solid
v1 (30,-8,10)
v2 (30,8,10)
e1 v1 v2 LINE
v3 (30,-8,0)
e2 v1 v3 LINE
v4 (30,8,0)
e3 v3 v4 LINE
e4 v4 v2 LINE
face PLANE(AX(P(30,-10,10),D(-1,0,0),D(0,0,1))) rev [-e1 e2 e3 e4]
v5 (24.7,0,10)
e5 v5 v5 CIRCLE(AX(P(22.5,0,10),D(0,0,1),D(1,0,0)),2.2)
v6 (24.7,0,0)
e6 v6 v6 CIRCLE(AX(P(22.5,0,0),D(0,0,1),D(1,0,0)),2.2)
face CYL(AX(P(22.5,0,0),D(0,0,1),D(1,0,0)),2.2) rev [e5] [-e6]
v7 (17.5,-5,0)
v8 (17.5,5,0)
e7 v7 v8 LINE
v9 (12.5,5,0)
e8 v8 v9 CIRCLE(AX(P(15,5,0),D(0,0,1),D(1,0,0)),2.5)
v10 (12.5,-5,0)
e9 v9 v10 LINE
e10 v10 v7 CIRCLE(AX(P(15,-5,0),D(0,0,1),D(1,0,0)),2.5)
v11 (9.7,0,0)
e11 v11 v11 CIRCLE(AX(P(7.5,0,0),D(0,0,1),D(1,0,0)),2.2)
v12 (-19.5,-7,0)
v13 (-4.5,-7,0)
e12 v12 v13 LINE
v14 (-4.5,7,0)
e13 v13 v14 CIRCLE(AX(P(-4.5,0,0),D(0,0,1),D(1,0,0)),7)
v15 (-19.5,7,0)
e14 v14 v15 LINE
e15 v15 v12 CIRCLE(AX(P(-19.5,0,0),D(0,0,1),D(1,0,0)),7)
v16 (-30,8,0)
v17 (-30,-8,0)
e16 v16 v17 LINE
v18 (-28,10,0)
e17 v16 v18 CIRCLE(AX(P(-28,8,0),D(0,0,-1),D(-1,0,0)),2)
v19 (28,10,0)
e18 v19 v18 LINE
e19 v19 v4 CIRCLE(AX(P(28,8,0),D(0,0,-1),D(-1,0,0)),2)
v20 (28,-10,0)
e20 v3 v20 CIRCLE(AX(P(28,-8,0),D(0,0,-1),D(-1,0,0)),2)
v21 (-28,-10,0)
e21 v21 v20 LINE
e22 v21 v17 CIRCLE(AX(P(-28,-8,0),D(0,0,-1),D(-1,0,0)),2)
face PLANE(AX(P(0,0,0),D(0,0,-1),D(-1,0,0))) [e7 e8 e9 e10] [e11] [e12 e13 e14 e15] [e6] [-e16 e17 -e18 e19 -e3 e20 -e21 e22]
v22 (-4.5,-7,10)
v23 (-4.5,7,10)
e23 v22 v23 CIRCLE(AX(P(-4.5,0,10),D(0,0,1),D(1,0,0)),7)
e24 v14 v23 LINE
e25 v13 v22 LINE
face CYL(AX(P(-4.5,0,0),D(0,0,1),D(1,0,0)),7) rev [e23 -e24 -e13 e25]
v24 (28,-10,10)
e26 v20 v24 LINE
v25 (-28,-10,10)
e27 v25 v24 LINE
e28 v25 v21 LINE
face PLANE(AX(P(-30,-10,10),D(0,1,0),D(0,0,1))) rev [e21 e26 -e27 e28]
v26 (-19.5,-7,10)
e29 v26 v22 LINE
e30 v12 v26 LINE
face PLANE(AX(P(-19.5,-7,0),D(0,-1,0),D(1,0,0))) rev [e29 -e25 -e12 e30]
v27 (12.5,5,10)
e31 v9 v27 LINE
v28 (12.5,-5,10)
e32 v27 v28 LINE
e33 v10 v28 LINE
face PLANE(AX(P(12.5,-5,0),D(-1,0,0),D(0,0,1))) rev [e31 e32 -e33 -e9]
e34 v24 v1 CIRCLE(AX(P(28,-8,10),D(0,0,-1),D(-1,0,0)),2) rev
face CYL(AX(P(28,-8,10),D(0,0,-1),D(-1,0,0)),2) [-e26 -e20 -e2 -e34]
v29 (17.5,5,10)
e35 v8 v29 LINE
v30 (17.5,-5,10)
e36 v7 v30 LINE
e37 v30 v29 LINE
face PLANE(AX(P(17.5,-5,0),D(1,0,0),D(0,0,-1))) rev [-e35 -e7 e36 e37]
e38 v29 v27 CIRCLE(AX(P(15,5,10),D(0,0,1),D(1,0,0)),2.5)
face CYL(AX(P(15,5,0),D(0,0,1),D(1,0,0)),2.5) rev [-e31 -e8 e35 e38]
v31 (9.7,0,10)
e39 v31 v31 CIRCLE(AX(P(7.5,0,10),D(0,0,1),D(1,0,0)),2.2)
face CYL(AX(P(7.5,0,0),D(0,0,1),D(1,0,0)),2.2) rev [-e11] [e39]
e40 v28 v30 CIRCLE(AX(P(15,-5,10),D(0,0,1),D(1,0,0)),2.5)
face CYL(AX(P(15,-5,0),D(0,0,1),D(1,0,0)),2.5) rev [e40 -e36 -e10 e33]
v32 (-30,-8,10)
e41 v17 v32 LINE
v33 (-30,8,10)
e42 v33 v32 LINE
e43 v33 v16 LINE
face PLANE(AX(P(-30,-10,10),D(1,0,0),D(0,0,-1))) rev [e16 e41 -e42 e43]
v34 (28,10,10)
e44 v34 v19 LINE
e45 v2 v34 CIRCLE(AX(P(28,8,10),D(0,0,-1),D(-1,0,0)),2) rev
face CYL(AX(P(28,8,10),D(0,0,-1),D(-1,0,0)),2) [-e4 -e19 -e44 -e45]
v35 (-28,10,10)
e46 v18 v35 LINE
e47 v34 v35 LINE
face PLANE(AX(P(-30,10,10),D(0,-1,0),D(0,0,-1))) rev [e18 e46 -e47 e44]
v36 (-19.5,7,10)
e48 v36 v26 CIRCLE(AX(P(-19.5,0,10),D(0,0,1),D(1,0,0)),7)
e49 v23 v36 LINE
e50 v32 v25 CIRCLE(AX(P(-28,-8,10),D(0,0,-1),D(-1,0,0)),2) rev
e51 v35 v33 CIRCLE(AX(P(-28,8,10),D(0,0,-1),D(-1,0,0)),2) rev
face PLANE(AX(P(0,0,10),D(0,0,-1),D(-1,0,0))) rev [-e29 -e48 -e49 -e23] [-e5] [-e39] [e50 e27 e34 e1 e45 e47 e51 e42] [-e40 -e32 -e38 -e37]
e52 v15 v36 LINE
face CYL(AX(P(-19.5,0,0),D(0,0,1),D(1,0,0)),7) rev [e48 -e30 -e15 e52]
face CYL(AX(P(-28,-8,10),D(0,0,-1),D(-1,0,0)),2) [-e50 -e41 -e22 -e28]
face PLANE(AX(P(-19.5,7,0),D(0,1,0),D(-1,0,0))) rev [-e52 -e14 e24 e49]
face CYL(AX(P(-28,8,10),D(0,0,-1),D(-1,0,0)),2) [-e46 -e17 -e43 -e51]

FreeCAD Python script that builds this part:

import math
import FreeCAD as App
import Part
import Sketcher
from FreeCAD import Vector
Q = App.Units.Quantity


def edges_at(feature, points):
    """Names of the edges that pass closest to the given points."""
    edges = feature.Shape.Edges
    near = lambda p: min(range(len(edges)), key=lambda i: edges[i].distToShape(Part.Vertex(*p))[0])
    return sorted({f"Edge{near(p) + 1}" for p in points})


def add_polygon(sketch, points):
    """Adds a closed chain of lines whose ends are joined by coincident constraints."""
    first, n = sketch.GeometryCount, len(points)
    for a, b in zip(points, points[1:] + points[:1]):
        sketch.addGeometry(Part.LineSegment(App.Vector(*a, 0), App.Vector(*b, 0)), False)
    for i in range(n):
        sketch.addConstraint(Sketcher.Constraint("Coincident", first + i, 2, first + (i + 1) % n, 1))

doc = App.newDocument("Part")
body = doc.addObject("PartDesign::Body", "Body")

sketch1 = body.newObject("Sketcher::SketchObject", "Sketch")
sketch1.AttachmentSupport = (doc.getObject("XY_Plane"), [""])
sketch1.MapMode = "FlatFace"
add_polygon(sketch1, [(-30, 10), (-30, -10), (30, -10), (30, 10)])
sketch1.addConstraint(Sketcher.Constraint("Vertical", 0))
sketch1.addConstraint(Sketcher.Constraint("Horizontal", 1))
sketch1.addConstraint(Sketcher.Constraint("Vertical", 2))
sketch1.addConstraint(Sketcher.Constraint("Horizontal", 3))
sketch1.addConstraint(Sketcher.Constraint("Symmetric", 0, 2, 2, 2, -1, 1))
sketch1.addConstraint(Sketcher.Constraint("DistanceX", 1, 1, 1, 2, Q("60 mm")))
sketch1.addConstraint(Sketcher.Constraint("DistanceY", 0, 2, 0, 1, Q("20 mm")))
pad1 = body.newObject("PartDesign::Pad", "Pad")
pad1.Profile = sketch1
pad1.Length = 10
doc.recompute()

fillet = body.newObject("PartDesign::Fillet", "Fillet")
fillet.Base = (pad1, edges_at(pad1, [
    (30, -10, 5),
    (-30, -10, 5),
    (-30, 10, 5),
    (30, 10, 5),
]))
fillet.Radius = 2

sketch2 = body.newObject("Sketcher::SketchObject", "Sketch001")
sketch2.AttachmentSupport = (doc.getObject("XY_Plane"), [""])
sketch2.MapMode = "FlatFace"
sketch2.AttachmentOffset = App.Placement(Vector(0, 0, 10), App.Rotation())
sketch2.addGeometry(Part.Circle(Vector(22.5, 0, 0), Vector(0, 0, 1), 2.2), False)
sketch2.addGeometry(Part.Circle(Vector(7.5, 0, 0), Vector(0, 0, 1), 2.2), False)
sketch2.addConstraint(Sketcher.Constraint("Equal", 0, 1))
sketch2.addConstraint(Sketcher.Constraint("PointOnObject", 0, 3, -1))
sketch2.addConstraint(Sketcher.Constraint("PointOnObject", 1, 3, -1))
sketch2.addConstraint(Sketcher.Constraint("Diameter", 0, Q("4.4 mm")))
sketch2.addConstraint(Sketcher.Constraint("DistanceX", 1, 3, 0, 3, Q("15 mm")))
sketch2.addConstraint(Sketcher.Constraint("DistanceX", -1, 1, 0, 3, Q("22.5 mm")))
pocket1 = body.newObject("PartDesign::Pocket", "Pocket")
pocket1.Profile = sketch2
pocket1.Type = "ThroughAll"

sketch3 = body.newObject("Sketcher::SketchObject", "Sketch002")
sketch3.AttachmentSupport = (doc.getObject("XY_Plane"), [""])
sketch3.MapMode = "FlatFace"
sketch3.AttachmentOffset = App.Placement(Vector(0, 0, 10), App.Rotation())
sketch3.addGeometry(Part.LineSegment(Vector(-4.5, 7, 0), Vector(-19.5, 7, 0)), False)
sketch3.addGeometry(Part.ArcOfCircle(Part.Circle(Vector(-19.5, 0, 0), Vector(0, 0, 1), 7), math.radians(90), math.radians(270)), False)
sketch3.addGeometry(Part.LineSegment(Vector(-19.5, -7, 0), Vector(-4.5, -7, 0)), False)
sketch3.addGeometry(Part.ArcOfCircle(Part.Circle(Vector(-4.5, 0, 0), Vector(0, 0, 1), 7), math.radians(-90), math.radians(90)), False)
sketch3.addGeometry(Part.LineSegment(Vector(12.5, 5, 0), Vector(12.5, -5, 0)), False)
sketch3.addGeometry(Part.ArcOfCircle(Part.Circle(Vector(15, -5, 0), Vector(0, 0, 1), 2.5), math.radians(180), math.radians(360)), False)
sketch3.addGeometry(Part.LineSegment(Vector(17.5, -5, 0), Vector(17.5, 5, 0)), False)
sketch3.addGeometry(Part.ArcOfCircle(Part.Circle(Vector(15, 5, 0), Vector(0, 0, 1), 2.5), math.radians(0), math.radians(180)), False)
sketch3.addConstraint(Sketcher.Constraint("Tangent", 0, 2, 1, 1))
sketch3.addConstraint(Sketcher.Constraint("Tangent", 1, 2, 2, 1))
sketch3.addConstraint(Sketcher.Constraint("Tangent", 2, 2, 3, 1))
sketch3.addConstraint(Sketcher.Constraint("Tangent", 3, 2, 0, 1))
sketch3.addConstraint(Sketcher.Constraint("Tangent", 4, 2, 5, 1))
sketch3.addConstraint(Sketcher.Constraint("Tangent", 5, 2, 6, 1))
sketch3.addConstraint(Sketcher.Constraint("Tangent", 6, 2, 7, 1))
sketch3.addConstraint(Sketcher.Constraint("Tangent", 7, 2, 4, 1))
sketch3.addConstraint(Sketcher.Constraint("Horizontal", 0))
sketch3.addConstraint(Sketcher.Constraint("Horizontal", 2))
sketch3.addConstraint(Sketcher.Constraint("Vertical", 4))
sketch3.addConstraint(Sketcher.Constraint("Vertical", 6))
sketch3.addConstraint(Sketcher.Constraint("PointOnObject", 1, 3, -1))
sketch3.addConstraint(Sketcher.Constraint("Radius", 1, Q("7 mm")))
sketch3.addConstraint(Sketcher.Constraint("Radius", 5, Q("2.5 mm")))
sketch3.addConstraint(Sketcher.Constraint("DistanceX", 0, 2, 0, 1, Q("15 mm")))
sketch3.addConstraint(Sketcher.Constraint("DistanceY", 4, 2, 4, 1, Q("10 mm")))
sketch3.addConstraint(Sketcher.Constraint("DistanceX", -1, 1, 5, 3, Q("15 mm")))
sketch3.addConstraint(Sketcher.Constraint("DistanceY", 5, 3, -1, 1, Q("5 mm")))
sketch3.addConstraint(Sketcher.Constraint("DistanceX", 2, 2, 4, 2, Q("17 mm")))
pocket2 = body.newObject("PartDesign::Pocket", "Pocket001")
pocket2.Profile = sketch3
pocket2.Type = "ThroughAll"

doc.recompute()
